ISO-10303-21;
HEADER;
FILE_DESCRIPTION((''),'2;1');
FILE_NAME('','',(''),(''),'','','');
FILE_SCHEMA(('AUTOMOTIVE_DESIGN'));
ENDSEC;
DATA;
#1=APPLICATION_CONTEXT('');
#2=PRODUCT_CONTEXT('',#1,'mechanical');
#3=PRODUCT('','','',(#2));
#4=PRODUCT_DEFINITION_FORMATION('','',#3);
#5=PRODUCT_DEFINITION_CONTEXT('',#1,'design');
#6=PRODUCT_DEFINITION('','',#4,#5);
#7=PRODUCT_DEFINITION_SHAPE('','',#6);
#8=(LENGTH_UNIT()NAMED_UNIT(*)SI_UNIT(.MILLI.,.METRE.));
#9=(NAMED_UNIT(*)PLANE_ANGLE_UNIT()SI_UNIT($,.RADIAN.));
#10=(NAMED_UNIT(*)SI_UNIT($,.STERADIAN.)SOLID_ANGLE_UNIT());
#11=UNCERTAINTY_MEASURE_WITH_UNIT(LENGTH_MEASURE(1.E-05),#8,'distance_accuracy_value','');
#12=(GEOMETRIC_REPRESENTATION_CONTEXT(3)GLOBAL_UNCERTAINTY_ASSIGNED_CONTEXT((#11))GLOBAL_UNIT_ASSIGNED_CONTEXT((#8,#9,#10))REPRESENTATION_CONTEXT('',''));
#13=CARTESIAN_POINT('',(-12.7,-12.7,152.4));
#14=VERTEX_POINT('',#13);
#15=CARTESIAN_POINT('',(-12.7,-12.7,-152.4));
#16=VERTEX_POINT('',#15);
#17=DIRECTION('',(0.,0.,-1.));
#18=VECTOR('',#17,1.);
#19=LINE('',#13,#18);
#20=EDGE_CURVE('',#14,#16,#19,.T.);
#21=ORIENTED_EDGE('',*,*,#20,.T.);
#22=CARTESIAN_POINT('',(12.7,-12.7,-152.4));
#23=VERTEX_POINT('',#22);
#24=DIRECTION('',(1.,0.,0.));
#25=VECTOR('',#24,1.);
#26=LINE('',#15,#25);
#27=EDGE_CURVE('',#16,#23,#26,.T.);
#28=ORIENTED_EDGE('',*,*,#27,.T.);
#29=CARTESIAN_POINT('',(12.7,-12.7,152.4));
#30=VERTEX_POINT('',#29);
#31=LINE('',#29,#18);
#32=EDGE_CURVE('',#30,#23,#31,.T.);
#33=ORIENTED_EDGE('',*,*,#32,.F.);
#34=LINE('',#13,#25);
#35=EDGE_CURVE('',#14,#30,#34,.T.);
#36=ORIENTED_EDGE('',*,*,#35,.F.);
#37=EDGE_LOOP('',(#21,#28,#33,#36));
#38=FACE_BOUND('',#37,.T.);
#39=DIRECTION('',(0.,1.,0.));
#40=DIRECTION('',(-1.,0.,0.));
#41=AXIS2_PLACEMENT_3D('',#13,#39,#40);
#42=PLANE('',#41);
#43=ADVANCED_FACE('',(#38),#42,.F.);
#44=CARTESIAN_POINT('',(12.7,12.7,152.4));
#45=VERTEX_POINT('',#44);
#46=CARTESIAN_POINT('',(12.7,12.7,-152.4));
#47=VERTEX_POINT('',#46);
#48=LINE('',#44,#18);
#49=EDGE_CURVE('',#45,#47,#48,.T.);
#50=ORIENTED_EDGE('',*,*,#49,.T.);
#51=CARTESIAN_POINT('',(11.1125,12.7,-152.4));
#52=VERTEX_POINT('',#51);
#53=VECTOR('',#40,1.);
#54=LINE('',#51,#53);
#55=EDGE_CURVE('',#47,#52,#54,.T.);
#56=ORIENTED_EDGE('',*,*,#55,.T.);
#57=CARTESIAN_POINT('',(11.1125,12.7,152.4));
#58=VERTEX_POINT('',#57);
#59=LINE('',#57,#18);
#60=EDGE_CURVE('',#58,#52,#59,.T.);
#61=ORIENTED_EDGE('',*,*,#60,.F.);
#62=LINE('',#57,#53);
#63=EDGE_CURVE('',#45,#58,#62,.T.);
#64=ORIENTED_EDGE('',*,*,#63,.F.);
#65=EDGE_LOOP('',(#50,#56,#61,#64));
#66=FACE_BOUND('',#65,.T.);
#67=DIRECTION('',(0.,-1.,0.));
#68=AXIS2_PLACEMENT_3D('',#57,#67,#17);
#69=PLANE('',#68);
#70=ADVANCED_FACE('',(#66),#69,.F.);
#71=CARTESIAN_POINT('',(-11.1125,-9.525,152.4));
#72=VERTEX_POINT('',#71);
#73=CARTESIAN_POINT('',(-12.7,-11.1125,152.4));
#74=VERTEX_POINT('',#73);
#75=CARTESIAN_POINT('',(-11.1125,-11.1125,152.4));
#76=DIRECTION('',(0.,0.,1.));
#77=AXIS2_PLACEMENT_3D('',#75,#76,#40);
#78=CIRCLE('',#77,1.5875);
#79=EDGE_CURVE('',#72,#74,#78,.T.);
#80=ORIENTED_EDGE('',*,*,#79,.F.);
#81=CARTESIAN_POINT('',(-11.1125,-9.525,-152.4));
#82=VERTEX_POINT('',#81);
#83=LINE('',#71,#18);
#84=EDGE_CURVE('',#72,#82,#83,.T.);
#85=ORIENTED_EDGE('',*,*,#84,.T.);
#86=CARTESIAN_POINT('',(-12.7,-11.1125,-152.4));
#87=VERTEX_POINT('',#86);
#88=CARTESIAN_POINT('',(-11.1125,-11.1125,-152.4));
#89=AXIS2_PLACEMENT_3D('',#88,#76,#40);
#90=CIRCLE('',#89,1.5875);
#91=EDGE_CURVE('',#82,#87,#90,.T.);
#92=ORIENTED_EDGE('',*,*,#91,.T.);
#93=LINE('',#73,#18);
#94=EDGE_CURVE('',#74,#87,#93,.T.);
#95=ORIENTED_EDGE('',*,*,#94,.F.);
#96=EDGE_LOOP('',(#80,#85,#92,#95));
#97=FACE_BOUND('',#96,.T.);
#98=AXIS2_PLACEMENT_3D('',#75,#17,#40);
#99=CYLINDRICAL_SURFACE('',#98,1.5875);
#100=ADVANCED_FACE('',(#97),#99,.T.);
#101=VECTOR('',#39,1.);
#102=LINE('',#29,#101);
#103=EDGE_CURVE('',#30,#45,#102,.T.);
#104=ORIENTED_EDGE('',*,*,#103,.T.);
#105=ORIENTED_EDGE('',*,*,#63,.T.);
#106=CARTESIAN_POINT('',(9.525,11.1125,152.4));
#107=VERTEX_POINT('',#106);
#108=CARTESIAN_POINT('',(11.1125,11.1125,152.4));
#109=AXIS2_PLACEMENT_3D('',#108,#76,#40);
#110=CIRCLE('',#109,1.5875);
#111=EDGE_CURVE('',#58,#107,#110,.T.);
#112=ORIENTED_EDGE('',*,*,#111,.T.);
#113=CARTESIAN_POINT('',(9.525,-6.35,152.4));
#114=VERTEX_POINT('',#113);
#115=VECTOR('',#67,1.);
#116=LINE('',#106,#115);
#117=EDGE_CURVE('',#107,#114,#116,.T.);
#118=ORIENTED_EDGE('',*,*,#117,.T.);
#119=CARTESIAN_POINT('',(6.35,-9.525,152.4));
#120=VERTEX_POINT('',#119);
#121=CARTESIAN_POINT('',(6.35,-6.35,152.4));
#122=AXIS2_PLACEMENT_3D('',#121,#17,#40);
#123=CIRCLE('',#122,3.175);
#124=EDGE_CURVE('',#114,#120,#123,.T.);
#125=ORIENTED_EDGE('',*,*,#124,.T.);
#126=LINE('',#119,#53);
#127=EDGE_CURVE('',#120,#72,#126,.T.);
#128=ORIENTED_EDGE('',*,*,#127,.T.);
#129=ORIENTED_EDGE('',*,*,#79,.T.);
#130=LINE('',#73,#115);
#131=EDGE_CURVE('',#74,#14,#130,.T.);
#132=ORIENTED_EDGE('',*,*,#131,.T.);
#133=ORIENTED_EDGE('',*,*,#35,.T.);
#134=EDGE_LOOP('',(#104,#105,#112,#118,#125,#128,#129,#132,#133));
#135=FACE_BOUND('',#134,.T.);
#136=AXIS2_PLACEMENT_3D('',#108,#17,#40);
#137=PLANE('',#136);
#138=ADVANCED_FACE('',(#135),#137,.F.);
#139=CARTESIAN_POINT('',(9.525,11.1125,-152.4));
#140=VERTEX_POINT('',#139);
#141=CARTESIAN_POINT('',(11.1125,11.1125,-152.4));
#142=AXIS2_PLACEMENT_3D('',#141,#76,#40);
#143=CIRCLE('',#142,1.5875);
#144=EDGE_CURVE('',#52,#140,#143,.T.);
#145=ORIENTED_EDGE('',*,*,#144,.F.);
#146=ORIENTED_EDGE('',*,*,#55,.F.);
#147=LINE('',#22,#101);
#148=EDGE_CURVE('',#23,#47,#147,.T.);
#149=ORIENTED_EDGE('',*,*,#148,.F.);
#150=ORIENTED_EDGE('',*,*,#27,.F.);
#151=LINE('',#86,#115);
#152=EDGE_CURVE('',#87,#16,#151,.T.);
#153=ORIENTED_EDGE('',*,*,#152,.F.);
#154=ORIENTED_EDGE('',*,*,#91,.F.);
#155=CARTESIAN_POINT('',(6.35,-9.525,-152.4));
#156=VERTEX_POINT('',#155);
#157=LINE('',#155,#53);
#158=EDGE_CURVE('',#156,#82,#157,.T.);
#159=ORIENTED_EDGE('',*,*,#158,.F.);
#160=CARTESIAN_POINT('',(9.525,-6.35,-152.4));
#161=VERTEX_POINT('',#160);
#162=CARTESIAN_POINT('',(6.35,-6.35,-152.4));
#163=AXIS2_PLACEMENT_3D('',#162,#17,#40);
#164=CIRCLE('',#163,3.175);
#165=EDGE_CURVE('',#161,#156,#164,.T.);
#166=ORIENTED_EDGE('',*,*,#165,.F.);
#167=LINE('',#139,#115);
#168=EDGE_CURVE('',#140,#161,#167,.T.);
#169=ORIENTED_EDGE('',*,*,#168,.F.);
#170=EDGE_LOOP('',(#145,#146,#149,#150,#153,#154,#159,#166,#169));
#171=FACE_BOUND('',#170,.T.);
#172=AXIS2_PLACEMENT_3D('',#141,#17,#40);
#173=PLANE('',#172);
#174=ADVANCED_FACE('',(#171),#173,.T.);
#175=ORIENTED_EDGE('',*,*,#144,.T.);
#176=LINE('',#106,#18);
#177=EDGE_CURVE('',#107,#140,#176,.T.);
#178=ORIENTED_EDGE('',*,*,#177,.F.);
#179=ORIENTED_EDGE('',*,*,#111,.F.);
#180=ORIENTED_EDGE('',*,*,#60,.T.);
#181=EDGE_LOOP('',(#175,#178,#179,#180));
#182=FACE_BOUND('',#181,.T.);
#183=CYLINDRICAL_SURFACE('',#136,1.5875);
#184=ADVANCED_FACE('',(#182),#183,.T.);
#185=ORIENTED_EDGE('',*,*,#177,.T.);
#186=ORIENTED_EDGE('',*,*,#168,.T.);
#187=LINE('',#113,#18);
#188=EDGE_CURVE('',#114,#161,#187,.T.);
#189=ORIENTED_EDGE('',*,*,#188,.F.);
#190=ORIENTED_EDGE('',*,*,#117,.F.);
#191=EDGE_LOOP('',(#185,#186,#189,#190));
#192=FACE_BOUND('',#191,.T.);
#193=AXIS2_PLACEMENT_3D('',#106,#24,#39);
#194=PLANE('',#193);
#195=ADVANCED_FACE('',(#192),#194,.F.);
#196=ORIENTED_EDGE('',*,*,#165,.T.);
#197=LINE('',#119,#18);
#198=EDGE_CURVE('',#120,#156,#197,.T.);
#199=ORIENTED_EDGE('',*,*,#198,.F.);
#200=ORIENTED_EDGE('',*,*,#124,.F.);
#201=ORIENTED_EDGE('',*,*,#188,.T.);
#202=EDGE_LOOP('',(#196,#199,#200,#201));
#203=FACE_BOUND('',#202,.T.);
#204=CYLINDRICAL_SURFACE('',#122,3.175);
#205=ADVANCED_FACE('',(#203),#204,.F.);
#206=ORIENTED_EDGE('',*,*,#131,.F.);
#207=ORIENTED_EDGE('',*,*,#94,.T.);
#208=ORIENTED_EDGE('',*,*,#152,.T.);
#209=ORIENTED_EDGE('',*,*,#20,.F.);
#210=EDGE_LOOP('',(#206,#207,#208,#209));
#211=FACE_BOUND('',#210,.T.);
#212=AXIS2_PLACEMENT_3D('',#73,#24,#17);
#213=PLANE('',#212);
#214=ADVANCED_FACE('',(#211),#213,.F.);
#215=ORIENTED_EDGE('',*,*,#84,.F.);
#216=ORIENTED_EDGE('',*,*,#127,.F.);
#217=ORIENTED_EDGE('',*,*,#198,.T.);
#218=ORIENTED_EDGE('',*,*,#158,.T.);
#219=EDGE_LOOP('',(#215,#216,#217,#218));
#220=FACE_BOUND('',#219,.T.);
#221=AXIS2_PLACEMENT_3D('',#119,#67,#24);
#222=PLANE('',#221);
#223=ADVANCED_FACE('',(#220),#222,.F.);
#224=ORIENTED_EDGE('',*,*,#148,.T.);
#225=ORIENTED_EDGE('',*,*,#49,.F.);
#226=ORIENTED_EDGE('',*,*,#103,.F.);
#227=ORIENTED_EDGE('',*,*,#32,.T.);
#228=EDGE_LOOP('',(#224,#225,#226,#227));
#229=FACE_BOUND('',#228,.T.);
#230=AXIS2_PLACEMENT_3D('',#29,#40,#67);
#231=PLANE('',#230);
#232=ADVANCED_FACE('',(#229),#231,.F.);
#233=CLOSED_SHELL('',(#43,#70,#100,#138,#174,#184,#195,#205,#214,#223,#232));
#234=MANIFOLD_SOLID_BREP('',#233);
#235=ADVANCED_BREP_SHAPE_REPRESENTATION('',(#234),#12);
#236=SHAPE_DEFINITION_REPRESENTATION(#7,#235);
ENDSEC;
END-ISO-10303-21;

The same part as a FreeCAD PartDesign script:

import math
import FreeCAD as App
import Part
import Sketcher
Q = App.Units.Quantity

doc = App.newDocument("Part")
body = doc.addObject("PartDesign::Body", "Body")

# Sketch on XY plane
sketch1 = body.newObject("Sketcher::SketchObject", "Sketch")
sketch1.AttachmentSupport = (doc.getObject("XY_Plane"), [""])
sketch1.MapMode = "FlatFace"
sketch1.addGeometry(Part.LineSegment(App.Vector(-12.7, -12.7, 0), App.Vector(12.7, -12.7, 0)), False)
sketch1.addGeometry(Part.LineSegment(App.Vector(12.7, -12.7, 0), App.Vector(12.7, 12.7, 0)), False)
sketch1.addGeometry(Part.LineSegment(App.Vector(12.7, 12.7, 0), App.Vector(11.1, 12.7, 0)), False)
sketch1.addGeometry(Part.ArcOfCircle(Part.Circle(App.Vector(11.1, 11.1, 0), App.Vector(0, 0, 1), 1.6), math.radians(90), math.radians(180)), False)
sketch1.addGeometry(Part.LineSegment(App.Vector(9.5, 11.1, 0), App.Vector(9.5, -6.3, 0)), False)
sketch1.addGeometry(Part.ArcOfCircle(Part.Circle(App.Vector(6.3, -6.3, 0), App.Vector(0, 0, 1), 3.2), math.radians(-90), math.radians(0)), False)
sketch1.addGeometry(Part.LineSegment(App.Vector(6.3, -9.5, 0), App.Vector(-11.1, -9.5, 0)), False)
sketch1.addGeometry(Part.ArcOfCircle(Part.Circle(App.Vector(-11.1, -11.1, 0), App.Vector(0, 0, 1), 1.6), math.radians(90), math.radians(180)), False)
sketch1.addGeometry(Part.LineSegment(App.Vector(-12.7, -11.1, 0), App.Vector(-12.7, -12.7, 0)), False)
sketch1.addConstraint(Sketcher.Constraint("Coincident", 0, 2, 1, 1))
sketch1.addConstraint(Sketcher.Constraint("Coincident", 1, 2, 2, 1))
sketch1.addConstraint(Sketcher.Constraint("Tangent", 2, 2, 3, 1))
sketch1.addConstraint(Sketcher.Constraint("Tangent", 3, 2, 4, 1))
sketch1.addConstraint(Sketcher.Constraint("Tangent", 4, 2, 5, 2))
sketch1.addConstraint(Sketcher.Constraint("Tangent", 5, 1, 6, 1))
sketch1.addConstraint(Sketcher.Constraint("Tangent", 6, 2, 7, 1))
sketch1.addConstraint(Sketcher.Constraint("Tangent", 7, 2, 8, 1))
sketch1.addConstraint(Sketcher.Constraint("Coincident", 8, 2, 0, 1))
sketch1.addConstraint(Sketcher.Constraint("Horizontal", 0))
sketch1.addConstraint(Sketcher.Constraint("Vertical", 1))
sketch1.addConstraint(Sketcher.Constraint("Horizontal", 2))
sketch1.addConstraint(Sketcher.Constraint("Vertical", 4))
sketch1.addConstraint(Sketcher.Constraint("Horizontal", 6))
sketch1.addConstraint(Sketcher.Constraint("Vertical", 8))
sketch1.addConstraint(Sketcher.Constraint("Equal", 3, 7))
sketch1.addConstraint(Sketcher.Constraint("Symmetric", 3, 3, 7, 3, -1, 1))
sketch1.addConstraint(Sketcher.Constraint("Symmetric", 1, 2, 8, 2, -1, 1))
sketch1.addConstraint(Sketcher.Constraint("Equal", 0, 1))
sketch1.addConstraint(Sketcher.Constraint("DistanceX", 0, 1, 0, 2, Q("1 in")))
sketch1.addConstraint(Sketcher.Constraint("Radius", 3, Q("0.0625 in")))
sketch1.addConstraint(Sketcher.Constraint("Radius", 5, Q("0.125 in")))
pad1 = body.newObject("PartDesign::Pad", "Pad")
pad1.Profile = sketch1
pad1.Length = Q("12 in")
pad1.Midplane = True

doc.recompute()
